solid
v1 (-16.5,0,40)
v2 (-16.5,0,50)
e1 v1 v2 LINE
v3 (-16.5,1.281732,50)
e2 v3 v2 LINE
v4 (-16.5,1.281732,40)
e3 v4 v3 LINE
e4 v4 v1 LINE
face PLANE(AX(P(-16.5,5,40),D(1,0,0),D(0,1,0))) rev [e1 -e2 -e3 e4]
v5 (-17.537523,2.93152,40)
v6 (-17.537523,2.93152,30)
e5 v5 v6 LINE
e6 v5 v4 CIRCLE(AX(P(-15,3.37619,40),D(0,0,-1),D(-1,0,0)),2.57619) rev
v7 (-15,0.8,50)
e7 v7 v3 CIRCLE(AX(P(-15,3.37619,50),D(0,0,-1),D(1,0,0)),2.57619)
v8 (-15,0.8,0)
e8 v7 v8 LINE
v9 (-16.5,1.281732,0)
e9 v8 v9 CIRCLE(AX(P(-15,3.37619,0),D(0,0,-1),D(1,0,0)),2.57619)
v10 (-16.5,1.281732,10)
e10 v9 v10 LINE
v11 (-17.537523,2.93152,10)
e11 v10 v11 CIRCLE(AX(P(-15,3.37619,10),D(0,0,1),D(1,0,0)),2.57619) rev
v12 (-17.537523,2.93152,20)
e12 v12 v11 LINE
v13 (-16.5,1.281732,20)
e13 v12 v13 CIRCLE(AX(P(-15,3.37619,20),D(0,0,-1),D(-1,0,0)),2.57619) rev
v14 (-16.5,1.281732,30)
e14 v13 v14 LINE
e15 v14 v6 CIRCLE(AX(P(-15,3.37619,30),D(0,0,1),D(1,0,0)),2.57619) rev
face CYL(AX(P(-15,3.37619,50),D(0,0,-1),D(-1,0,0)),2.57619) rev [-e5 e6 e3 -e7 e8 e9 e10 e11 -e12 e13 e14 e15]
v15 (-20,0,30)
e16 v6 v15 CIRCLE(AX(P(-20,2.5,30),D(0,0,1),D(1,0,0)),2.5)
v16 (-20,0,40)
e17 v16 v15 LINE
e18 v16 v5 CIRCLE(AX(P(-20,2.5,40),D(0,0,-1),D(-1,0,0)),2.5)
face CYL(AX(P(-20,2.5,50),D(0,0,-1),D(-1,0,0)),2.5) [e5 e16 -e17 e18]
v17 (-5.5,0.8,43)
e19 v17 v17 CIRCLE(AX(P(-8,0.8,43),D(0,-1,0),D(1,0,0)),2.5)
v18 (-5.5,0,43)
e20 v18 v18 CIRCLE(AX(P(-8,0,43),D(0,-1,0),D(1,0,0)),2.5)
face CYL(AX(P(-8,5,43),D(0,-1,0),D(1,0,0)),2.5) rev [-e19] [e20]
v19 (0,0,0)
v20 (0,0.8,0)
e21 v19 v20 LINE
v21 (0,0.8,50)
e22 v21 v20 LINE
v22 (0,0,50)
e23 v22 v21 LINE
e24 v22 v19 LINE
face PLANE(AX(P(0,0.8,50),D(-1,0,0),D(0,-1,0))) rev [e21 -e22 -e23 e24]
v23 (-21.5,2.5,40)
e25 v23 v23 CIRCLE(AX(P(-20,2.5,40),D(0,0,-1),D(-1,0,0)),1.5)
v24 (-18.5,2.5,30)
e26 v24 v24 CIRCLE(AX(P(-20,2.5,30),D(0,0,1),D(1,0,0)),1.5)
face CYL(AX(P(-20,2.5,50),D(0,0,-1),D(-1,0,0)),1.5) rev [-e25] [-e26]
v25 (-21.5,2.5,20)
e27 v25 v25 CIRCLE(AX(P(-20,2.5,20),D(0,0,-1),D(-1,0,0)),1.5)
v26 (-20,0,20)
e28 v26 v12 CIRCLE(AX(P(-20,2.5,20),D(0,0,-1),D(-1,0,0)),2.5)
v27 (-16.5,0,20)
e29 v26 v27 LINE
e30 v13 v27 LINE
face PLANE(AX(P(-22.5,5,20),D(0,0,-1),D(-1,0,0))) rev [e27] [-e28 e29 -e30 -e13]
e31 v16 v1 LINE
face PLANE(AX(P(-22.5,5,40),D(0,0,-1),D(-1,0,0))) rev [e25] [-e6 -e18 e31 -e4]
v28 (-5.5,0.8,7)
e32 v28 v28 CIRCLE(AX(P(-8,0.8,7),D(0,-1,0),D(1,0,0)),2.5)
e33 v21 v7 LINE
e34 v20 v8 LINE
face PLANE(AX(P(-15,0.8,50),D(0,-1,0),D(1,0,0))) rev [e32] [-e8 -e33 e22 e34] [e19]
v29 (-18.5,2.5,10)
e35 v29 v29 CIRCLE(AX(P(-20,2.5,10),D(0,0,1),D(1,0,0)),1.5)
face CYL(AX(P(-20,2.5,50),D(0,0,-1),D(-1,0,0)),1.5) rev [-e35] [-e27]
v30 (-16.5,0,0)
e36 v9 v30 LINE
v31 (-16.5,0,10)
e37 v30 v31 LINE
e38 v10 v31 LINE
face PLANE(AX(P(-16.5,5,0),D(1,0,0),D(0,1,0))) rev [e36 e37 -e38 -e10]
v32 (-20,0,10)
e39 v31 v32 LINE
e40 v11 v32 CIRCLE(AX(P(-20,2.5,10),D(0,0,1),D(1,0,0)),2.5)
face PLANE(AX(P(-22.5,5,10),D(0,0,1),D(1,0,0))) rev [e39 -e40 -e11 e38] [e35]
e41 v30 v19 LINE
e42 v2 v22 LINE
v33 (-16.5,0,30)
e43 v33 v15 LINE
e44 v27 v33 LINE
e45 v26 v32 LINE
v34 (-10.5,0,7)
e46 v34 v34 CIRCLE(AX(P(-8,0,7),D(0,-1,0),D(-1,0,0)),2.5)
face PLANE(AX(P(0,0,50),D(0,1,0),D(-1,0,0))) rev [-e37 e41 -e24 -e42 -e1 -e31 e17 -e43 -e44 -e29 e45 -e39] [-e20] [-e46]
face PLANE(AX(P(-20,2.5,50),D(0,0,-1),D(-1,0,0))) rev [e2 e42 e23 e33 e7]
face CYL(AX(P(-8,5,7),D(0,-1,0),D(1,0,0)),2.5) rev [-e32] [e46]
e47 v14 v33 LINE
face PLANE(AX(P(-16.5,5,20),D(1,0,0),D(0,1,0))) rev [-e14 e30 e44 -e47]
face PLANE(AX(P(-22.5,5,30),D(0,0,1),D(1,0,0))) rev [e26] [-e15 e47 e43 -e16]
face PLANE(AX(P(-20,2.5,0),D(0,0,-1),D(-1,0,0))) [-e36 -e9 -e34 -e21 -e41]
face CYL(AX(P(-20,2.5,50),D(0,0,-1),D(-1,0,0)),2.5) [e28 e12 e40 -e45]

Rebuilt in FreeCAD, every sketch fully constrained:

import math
import FreeCAD as App
import Part
import Sketcher
Q = App.Units.Quantity

doc = App.newDocument("Part")
body = doc.addObject("PartDesign::Body", "Body")

# Sketch on XY plane
sketch1 = body.newObject("Sketcher::SketchObject", "Sketch")
sketch1.AttachmentSupport = (doc.getObject("XY_Plane"), [""])
sketch1.MapMode = "FlatFace"
sketch1.addGeometry(Part.LineSegment(App.Vector(-20, 0, 0), App.Vector(0, 0, 0)), False)
sketch1.addGeometry(Part.LineSegment(App.Vector(0, 0, 0), App.Vector(0, 0.8, 0)), False)
sketch1.addGeometry(Part.LineSegment(App.Vector(0, 0.8, 0), App.Vector(-15, 0.8, 0)), False)
sketch1.addGeometry(Part.ArcOfCircle(Part.Circle(App.Vector(-15, 3.4, 0), App.Vector(0, 0, 1), 2.6), math.radians(-170), math.radians(-90)), False)
sketch1.addGeometry(Part.ArcOfCircle(Part.Circle(App.Vector(-20, 2.5, 0), App.Vector(0, 0, 1), 2.5), math.radians(10), math.radians(47)), False)
sketch1.addGeometry(Part.ArcOfCircle(Part.Circle(App.Vector(-20, 2.5, 0), App.Vector(0, 0, 1), 2.5), math.radians(47), math.radians(270)), False)
sketch1.addGeometry(Part.Circle(App.Vector(-20, 2.5, 0), App.Vector(0, 0, 1), 1.5), False)
sketch1.addConstraint(Sketcher.Constraint("Coincident", 0, 2, 1, 1))
sketch1.addConstraint(Sketcher.Constraint("Coincident", 1, 2, 2, 1))
sketch1.addConstraint(Sketcher.Constraint("Tangent", 2, 2, 3, 2))
sketch1.addConstraint(Sketcher.Constraint("Tangent", 3, 1, 4, 1))
sketch1.addConstraint(Sketcher.Constraint("Tangent", 4, 2, 5, 1))
sketch1.addConstraint(Sketcher.Constraint("Tangent", 5, 2, 0, 1))
sketch1.addConstraint(Sketcher.Constraint("Horizontal", 0))
sketch1.addConstraint(Sketcher.Constraint("Vertical", 1))
sketch1.addConstraint(Sketcher.Constraint("Horizontal", 2))
sketch1.addConstraint(Sketcher.Constraint("Coincident", 0, 2, -1, 1))
sketch1.addConstraint(Sketcher.Constraint("Coincident", 6, 3, 4, 3))
sketch1.addConstraint(Sketcher.Constraint("Equal", 4, 5))
sketch1.addConstraint(Sketcher.Constraint("Diameter", 6, Q("3 mm")))
sketch1.addConstraint(Sketcher.Constraint("Radius", 4, Q("2.5 mm")))
sketch1.addConstraint(Sketcher.Constraint("DistanceX", 0, 1, 0, 2, Q("20 mm")))
sketch1.addConstraint(Sketcher.Constraint("DistanceX", 2, 2, 2, 1, Q("15 mm")))
sketch1.addConstraint(Sketcher.Constraint("DistanceY", 1, 1, 1, 2, Q("0.8 mm")))
sketch1.addConstraint(Sketcher.Constraint("DistanceY", 3, 1, 4, 2, Q("1.391502 mm")))
pad1 = body.newObject("PartDesign::Pad", "Pad")
pad1.Profile = sketch1
pad1.Length = 50

# Sketch on XZ plane
sketch2 = body.newObject("Sketcher::SketchObject", "Sketch001")
sketch2.AttachmentSupport = (doc.getObject("XZ_Plane"), [""])
sketch2.MapMode = "FlatFace"
sketch2.addGeometry(Part.Circle(App.Vector(-8, 43, 0), App.Vector(0, 0, 1), 2.5), False)
sketch2.addGeometry(Part.Circle(App.Vector(-8, 7, 0), App.Vector(0, 0, 1), 2.5), False)
sketch2.addGeometry(Part.LineSegment(App.Vector(-22.5, 10, 0), App.Vector(-22.5, 0, 0)), False)
sketch2.addGeometry(Part.LineSegment(App.Vector(-22.5, 0, 0), App.Vector(-16.5, 0, 0)), False)
sketch2.addGeometry(Part.LineSegment(App.Vector(-16.5, 0, 0), App.Vector(-16.5, 10, 0)), False)
sketch2.addGeometry(Part.LineSegment(App.Vector(-16.5, 10, 0), App.Vector(-22.5, 10, 0)), False)
sketch2.addGeometry(Part.LineSegment(App.Vector(-22.5, 30, 0), App.Vector(-22.5, 20, 0)), False)
sketch2.addGeometry(Part.LineSegment(App.Vector(-22.5, 20, 0), App.Vector(-16.5, 20, 0)), False)
sketch2.addGeometry(Part.LineSegment(App.Vector(-16.5, 20, 0), App.Vector(-16.5, 30, 0)), False)
sketch2.addGeometry(Part.LineSegment(App.Vector(-16.5, 30, 0), App.Vector(-22.5, 30, 0)), False)
sketch2.addGeometry(Part.LineSegment(App.Vector(-22.5, 50, 0), App.Vector(-22.5, 40, 0)), False)
sketch2.addGeometry(Part.LineSegment(App.Vector(-22.5, 40, 0), App.Vector(-16.5, 40, 0)), False)
sketch2.addGeometry(Part.LineSegment(App.Vector(-16.5, 40, 0), App.Vector(-16.5, 50, 0)), False)
sketch2.addGeometry(Part.LineSegment(App.Vector(-16.5, 50, 0), App.Vector(-22.5, 50, 0)), False)
sketch2.addConstraint(Sketcher.Constraint("Coincident", 2, 2, 3, 1))
sketch2.addConstraint(Sketcher.Constraint("Coincident", 3, 2, 4, 1))
sketch2.addConstraint(Sketcher.Constraint("Coincident", 4, 2, 5, 1))
sketch2.addConstraint(Sketcher.Constraint("Coincident", 5, 2, 2, 1))
sketch2.addConstraint(Sketcher.Constraint("Coincident", 6, 2, 7, 1))
sketch2.addConstraint(Sketcher.Constraint("Coincident", 7, 2, 8, 1))
sketch2.addConstraint(Sketcher.Constraint("Coincident", 8, 2, 9, 1))
sketch2.addConstraint(Sketcher.Constraint("Coincident", 9, 2, 6, 1))
sketch2.addConstraint(Sketcher.Constraint("Coincident", 10, 2, 11, 1))
sketch2.addConstraint(Sketcher.Constraint("Coincident", 11, 2, 12, 1))
sketch2.addConstraint(Sketcher.Constraint("Coincident", 12, 2, 13, 1))
sketch2.addConstraint(Sketcher.Constraint("Coincident", 13, 2, 10, 1))
sketch2.addConstraint(Sketcher.Constraint("Vertical", 2))
sketch2.addConstraint(Sketcher.Constraint("Horizontal", 3))
sketch2.addConstraint(Sketcher.Constraint("Vertical", 4))
sketch2.addConstraint(Sketcher.Constraint("Horizontal", 5))
sketch2.addConstraint(Sketcher.Constraint("Vertical", 6))
sketch2.addConstraint(Sketcher.Constraint("Horizontal", 7))
sketch2.addConstraint(Sketcher.Constraint("Vertical", 8))
sketch2.addConstraint(Sketcher.Constraint("Horizontal", 9))
sketch2.addConstraint(Sketcher.Constraint("Vertical", 10))
sketch2.addConstraint(Sketcher.Constraint("Horizontal", 11))
sketch2.addConstraint(Sketcher.Constraint("Vertical", 12))
sketch2.addConstraint(Sketcher.Constraint("Horizontal", 13))
sketch2.addConstraint(Sketcher.Constraint("Equal", 0, 1))
sketch2.addConstraint(Sketcher.Constraint("PointOnObject", 2, 2, -1))
sketch2.addConstraint(Sketcher.Constraint("Vertical", 0, 3, 1, 3))
sketch2.addConstraint(Sketcher.Constraint("Vertical", 5, 2, 6, 2))
sketch2.addConstraint(Sketcher.Constraint("Vertical", 4, 2, 7, 2))
sketch2.addConstraint(Sketcher.Constraint("Vertical", 9, 2, 10, 2))
sketch2.addConstraint(Sketcher.Constraint("Vertical", 8, 2, 11, 2))
sketch2.addConstraint(Sketcher.Constraint("Equal", 4, 6))
sketch2.addConstraint(Sketcher.Constraint("Equal", 8, 10))
sketch2.addConstraint(Sketcher.Constraint("Diameter", 0, Q("5 mm")))
sketch2.addConstraint(Sketcher.Constraint("DistanceX", 3, 1, 3, 2, Q("6 mm")))
sketch2.addConstraint(Sketcher.Constraint("DistanceY", 2, 2, 2, 1, Q("10 mm")))
sketch2.addConstraint(Sketcher.Constraint("DistanceX", 0, 3, -1, 1, Q("8 mm")))
sketch2.addConstraint(Sketcher.Constraint("DistanceY", -1, 1, 0, 3, Q("43 mm")))
sketch2.addConstraint(Sketcher.Constraint("DistanceY", -1, 1, 1, 3, Q("7 mm")))
sketch2.addConstraint(Sketcher.Constraint("DistanceY", -1, 1, 6, 2, Q("20 mm")))
sketch2.addConstraint(Sketcher.Constraint("DistanceY", -1, 1, 10, 2, Q("40 mm")))
sketch2.addConstraint(Sketcher.Constraint("DistanceX", 2, 2, -1, 1, Q("22.5 mm")))
pocket1 = body.newObject("PartDesign::Pocket", "Pocket")
pocket1.Profile = sketch2
pocket1.Type = "ThroughAll"

doc.recompute()
